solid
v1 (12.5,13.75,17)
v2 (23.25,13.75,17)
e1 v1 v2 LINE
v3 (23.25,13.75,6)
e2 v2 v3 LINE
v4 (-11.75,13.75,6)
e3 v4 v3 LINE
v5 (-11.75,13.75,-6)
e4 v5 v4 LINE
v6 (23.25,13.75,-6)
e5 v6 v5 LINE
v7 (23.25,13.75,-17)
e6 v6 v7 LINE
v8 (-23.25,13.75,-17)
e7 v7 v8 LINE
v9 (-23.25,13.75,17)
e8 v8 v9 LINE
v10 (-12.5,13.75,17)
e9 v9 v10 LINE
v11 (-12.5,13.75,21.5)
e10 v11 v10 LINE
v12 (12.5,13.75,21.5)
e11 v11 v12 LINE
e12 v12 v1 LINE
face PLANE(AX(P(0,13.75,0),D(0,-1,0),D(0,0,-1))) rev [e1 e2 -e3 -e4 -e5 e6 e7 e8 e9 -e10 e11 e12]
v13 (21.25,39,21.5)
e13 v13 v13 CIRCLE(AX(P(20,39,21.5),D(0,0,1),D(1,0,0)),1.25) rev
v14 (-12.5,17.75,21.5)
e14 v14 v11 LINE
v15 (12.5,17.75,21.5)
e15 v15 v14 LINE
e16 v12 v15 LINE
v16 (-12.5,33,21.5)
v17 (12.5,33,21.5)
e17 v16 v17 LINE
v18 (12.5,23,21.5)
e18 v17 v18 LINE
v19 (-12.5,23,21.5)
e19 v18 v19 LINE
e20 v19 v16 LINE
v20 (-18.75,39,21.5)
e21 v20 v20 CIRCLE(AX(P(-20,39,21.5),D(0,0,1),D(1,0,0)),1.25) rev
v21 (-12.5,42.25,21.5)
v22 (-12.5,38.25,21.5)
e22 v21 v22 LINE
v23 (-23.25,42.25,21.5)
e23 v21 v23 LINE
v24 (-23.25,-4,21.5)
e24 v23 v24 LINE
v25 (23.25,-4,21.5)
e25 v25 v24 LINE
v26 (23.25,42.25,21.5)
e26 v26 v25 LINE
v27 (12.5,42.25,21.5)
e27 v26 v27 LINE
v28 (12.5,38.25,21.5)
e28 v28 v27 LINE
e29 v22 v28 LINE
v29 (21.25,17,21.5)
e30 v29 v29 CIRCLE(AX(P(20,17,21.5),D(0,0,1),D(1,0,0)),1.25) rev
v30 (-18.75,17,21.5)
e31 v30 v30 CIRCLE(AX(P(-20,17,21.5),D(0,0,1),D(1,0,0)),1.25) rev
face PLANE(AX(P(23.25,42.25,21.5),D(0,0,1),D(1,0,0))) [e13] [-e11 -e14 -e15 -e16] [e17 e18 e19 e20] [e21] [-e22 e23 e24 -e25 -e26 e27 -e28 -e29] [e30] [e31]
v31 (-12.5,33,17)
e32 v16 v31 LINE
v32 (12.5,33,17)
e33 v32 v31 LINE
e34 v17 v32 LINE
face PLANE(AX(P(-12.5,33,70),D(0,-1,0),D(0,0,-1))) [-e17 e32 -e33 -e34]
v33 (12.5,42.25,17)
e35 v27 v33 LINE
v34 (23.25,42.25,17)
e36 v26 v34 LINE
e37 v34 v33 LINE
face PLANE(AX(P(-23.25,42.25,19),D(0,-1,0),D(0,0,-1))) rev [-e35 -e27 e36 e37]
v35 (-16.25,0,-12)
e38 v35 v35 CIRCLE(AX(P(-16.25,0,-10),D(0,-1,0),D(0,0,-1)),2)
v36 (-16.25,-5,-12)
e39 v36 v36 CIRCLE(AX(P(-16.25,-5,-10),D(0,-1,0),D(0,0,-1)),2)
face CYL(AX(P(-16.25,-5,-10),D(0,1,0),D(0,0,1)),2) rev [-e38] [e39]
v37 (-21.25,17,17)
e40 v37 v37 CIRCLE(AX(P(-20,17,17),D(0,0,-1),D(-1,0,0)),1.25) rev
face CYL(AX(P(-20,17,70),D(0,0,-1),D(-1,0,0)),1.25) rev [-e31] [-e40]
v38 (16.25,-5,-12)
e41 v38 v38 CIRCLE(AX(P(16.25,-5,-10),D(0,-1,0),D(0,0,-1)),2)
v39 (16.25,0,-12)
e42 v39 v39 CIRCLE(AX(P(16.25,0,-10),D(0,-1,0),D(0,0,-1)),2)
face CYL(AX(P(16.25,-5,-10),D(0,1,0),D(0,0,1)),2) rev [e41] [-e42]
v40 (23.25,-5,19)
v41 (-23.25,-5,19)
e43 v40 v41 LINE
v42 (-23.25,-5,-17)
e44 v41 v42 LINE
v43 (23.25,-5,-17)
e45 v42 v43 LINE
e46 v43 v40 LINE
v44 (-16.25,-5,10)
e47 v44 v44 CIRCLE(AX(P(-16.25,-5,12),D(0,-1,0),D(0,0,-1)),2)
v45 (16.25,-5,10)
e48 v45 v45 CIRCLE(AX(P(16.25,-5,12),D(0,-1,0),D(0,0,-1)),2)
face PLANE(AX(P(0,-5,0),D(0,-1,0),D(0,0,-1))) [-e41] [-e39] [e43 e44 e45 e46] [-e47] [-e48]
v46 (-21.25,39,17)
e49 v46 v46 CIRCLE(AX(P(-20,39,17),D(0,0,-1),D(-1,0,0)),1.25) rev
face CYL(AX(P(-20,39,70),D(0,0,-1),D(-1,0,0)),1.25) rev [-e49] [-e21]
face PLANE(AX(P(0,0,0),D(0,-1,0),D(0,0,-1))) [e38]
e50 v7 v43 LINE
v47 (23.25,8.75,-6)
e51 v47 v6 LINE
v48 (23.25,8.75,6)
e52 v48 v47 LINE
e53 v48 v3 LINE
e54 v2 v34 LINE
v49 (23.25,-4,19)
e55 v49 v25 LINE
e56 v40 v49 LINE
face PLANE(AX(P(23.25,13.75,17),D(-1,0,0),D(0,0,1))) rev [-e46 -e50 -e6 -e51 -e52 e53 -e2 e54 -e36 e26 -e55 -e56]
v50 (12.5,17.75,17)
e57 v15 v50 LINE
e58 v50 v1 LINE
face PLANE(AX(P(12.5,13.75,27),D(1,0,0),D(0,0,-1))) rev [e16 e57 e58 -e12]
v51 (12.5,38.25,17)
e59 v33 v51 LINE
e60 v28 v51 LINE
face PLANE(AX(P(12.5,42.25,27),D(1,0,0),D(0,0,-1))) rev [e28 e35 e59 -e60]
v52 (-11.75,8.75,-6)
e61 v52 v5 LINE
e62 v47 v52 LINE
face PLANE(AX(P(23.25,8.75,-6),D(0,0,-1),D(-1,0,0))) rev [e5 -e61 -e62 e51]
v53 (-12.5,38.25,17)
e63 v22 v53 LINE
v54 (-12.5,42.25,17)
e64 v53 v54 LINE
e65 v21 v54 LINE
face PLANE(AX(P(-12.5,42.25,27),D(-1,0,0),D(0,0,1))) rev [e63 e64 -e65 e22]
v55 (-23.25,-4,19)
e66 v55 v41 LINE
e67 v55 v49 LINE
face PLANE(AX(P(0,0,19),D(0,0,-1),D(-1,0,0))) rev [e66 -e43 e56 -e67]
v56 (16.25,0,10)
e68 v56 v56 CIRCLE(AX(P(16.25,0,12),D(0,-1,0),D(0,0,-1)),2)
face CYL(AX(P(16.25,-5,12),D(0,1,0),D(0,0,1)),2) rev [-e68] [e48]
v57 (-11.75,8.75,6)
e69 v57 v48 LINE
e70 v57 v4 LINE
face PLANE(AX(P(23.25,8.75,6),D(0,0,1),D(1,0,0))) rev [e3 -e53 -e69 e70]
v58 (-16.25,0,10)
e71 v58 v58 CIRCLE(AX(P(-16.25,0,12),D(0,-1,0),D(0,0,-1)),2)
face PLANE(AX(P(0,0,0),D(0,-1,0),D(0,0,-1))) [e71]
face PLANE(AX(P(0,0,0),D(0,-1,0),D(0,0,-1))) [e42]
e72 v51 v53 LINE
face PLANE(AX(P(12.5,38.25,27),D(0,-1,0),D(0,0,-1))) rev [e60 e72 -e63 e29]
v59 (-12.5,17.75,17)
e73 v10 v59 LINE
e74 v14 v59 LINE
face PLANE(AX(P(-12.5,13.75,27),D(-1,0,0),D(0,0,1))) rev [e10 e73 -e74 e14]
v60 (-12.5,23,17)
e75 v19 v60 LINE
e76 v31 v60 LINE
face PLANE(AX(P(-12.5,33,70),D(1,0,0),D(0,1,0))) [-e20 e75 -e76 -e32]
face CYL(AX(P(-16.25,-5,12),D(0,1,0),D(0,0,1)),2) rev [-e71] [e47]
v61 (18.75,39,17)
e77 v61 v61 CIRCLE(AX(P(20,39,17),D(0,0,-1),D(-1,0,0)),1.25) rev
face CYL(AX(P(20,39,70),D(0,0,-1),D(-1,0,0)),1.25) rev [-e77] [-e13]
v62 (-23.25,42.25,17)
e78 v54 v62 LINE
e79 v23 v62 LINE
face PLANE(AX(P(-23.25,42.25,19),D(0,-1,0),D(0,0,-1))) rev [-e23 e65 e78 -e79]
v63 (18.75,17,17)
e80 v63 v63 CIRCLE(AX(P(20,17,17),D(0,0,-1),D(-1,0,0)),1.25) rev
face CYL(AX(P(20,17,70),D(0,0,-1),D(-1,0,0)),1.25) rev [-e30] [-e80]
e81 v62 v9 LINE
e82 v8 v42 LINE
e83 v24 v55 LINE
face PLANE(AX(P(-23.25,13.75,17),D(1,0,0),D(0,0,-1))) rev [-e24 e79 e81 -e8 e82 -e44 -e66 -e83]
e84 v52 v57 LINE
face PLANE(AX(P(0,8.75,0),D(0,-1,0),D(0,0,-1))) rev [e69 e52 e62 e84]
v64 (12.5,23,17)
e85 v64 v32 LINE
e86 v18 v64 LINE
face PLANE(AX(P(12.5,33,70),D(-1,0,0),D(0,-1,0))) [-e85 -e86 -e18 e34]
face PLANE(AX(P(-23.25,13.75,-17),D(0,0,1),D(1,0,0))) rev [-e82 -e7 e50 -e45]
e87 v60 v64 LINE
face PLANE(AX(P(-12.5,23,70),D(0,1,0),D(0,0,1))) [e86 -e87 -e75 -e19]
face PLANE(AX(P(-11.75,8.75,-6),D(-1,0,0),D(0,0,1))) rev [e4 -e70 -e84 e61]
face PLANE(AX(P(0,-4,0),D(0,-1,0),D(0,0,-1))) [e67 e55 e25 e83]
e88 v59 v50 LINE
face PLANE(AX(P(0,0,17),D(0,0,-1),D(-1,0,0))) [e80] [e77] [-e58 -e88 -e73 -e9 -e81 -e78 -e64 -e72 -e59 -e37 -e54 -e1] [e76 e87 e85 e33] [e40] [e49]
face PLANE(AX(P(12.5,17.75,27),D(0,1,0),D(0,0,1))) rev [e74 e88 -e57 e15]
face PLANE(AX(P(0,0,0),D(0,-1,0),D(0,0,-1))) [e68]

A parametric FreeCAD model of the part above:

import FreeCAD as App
import Part
import Sketcher

V = App.Vector
Q = App.Units.Quantity

doc = App.newDocument("Part")
body = doc.addObject("PartDesign::Body", "Body")

sketch1 = body.newObject("Sketcher::SketchObject", "Sketch")
sketch1.AttachmentSupport = (doc.getObject("XZ_Plane"), [""])
sketch1.MapMode = "FlatFace"
sketch1.addGeometry([
    Part.LineSegment(V(-23, -17, 0), V(-23, 17, 0)),
    Part.LineSegment(V(-23, 17, 0), V(23, 17, 0)),
    Part.LineSegment(V(23, 17, 0), V(23, -17, 0)),
    Part.LineSegment(V(23, -17, 0), V(-23, -17, 0)),
], False)
sketch1.addConstraint([
    Sketcher.Constraint("Coincident", 0, 2, 1, 1),
    Sketcher.Constraint("Coincident", 1, 2, 2, 1),
    Sketcher.Constraint("Coincident", 2, 2, 3, 1),
    Sketcher.Constraint("Coincident", 3, 2, 0, 1),
    Sketcher.Constraint("Vertical", 0),
    Sketcher.Constraint("Horizontal", 1),
    Sketcher.Constraint("Vertical", 2),
    Sketcher.Constraint("Horizontal", 3),
    Sketcher.Constraint("Symmetric", 0, 2, 2, 2, -1, 1),
    Sketcher.Constraint("DistanceY", 0, 1, 0, 2, Q("34 mm")),
    Sketcher.Constraint("DistanceX", 1, 1, 1, 2, Q("46.5 mm")),
])
pad1 = body.newObject("PartDesign::Pad", "Pad")
pad1.Profile = sketch1
pad1.Length = 13.75
pad1.Reversed = True

sketch2 = body.newObject("Sketcher::SketchObject", "Sketch001")
sketch2.AttachmentSupport = (doc.getObject("XY_Plane"), [""])
sketch2.MapMode = "FlatFace"
sketch2.AttachmentOffset = App.Placement(V(0, 0, 17), App.Rotation())
sketch2.addGeometry([
    Part.LineSegment(V(-23, 42, 0), V(-23, 0, 0)),
    Part.LineSegment(V(-23, 0, 0), V(23, 0, 0)),
    Part.LineSegment(V(23, 0, 0), V(23, 42, 0)),
    Part.LineSegment(V(23, 42, 0), V(-23, 42, 0)),
], False)
sketch2.addConstraint([
    Sketcher.Constraint("Coincident", 0, 2, 1, 1),
    Sketcher.Constraint("Coincident", 1, 2, 2, 1),
    Sketcher.Constraint("Coincident", 2, 2, 3, 1),
    Sketcher.Constraint("Coincident", 3, 2, 0, 1),
    Sketcher.Constraint("Vertical", 0),
    Sketcher.Constraint("Horizontal", 1),
    Sketcher.Constraint("Vertical", 2),
    Sketcher.Constraint("Horizontal", 3),
    Sketcher.Constraint("Symmetric", 0, 2, 1, 2, -1, 1),
    Sketcher.Constraint("DistanceX", 1, 1, 1, 2, Q("46.5 mm")),
    Sketcher.Constraint("DistanceY", 0, 2, 0, 1, Q("42.25 mm")),
])
pad2 = body.newObject("PartDesign::Pad", "Pad001")
pad2.Profile = sketch2
pad2.Length = 2

sketch3 = body.newObject("Sketcher::SketchObject", "Sketch002")
sketch3.AttachmentSupport = (doc.getObject("XZ_Plane"), [""])
sketch3.MapMode = "FlatFace"
sketch3.AttachmentOffset = App.Placement(V(0, 0, -13.75), App.Rotation())
sketch3.addGeometry([
    Part.LineSegment(V(-12, -6, 0), V(-12, 6, 0)),
    Part.LineSegment(V(-12, 6, 0), V(23, 6, 0)),
    Part.LineSegment(V(23, 6, 0), V(23, -6, 0)),
    Part.LineSegment(V(23, -6, 0), V(-12, -6, 0)),
], False)
sketch3.addConstraint([
    Sketcher.Constraint("Coincident", 0, 2, 1, 1),
    Sketcher.Constraint("Coincident", 1, 2, 2, 1),
    Sketcher.Constraint("Coincident", 2, 2, 3, 1),
    Sketcher.Constraint("Coincident", 3, 2, 0, 1),
    Sketcher.Constraint("Vertical", 0),
    Sketcher.Constraint("Horizontal", 1),
    Sketcher.Constraint("Vertical", 2),
    Sketcher.Constraint("Horizontal", 3),
    Sketcher.Constraint("DistanceX", 1, 1, 1, 2, Q("35 mm")),
    Sketcher.Constraint("DistanceY", 0, 1, 0, 2, Q("12 mm")),
    Sketcher.Constraint("DistanceY", -1, 1, 0, 2, Q("6 mm")),
    Sketcher.Constraint("DistanceX", 0, 2, -1, 1, Q("11.75 mm")),
])
pocket1 = body.newObject("PartDesign::Pocket", "Pocket")
pocket1.Profile = sketch3
pocket1.Length = 5
pocket1.Reversed = True

sketch4 = body.newObject("Sketcher::SketchObject", "Sketch003")
sketch4.AttachmentSupport = (doc.getObject("XZ_Plane"), [""])
sketch4.MapMode = "FlatFace"
sketch4.addGeometry([
    Part.LineSegment(V(-23.2, 19, 0), V(-23.2, -17, 0)),
    Part.LineSegment(V(-23.2, -17, 0), V(23.2, -17, 0)),
    Part.LineSegment(V(23.2, -17, 0), V(23.2, 19, 0)),
    Part.LineSegment(V(23.2, 19, 0), V(-23.2, 19, 0)),
    Part.Circle(V(-16.2, -10, 0), V(0, 0, 1), 2),
    Part.Circle(V(16.2, -10, 0), V(0, 0, 1), 2),
    Part.Circle(V(-16.2, 12, 0), V(0, 0, 1), 2),
    Part.Circle(V(16.2, 12, 0), V(0, 0, 1), 2),
], False)
sketch4.addConstraint([
    Sketcher.Constraint("Coincident", 0, 2, 1, 1),
    Sketcher.Constraint("Coincident", 1, 2, 2, 1),
    Sketcher.Constraint("Coincident", 2, 2, 3, 1),
    Sketcher.Constraint("Coincident", 3, 2, 0, 1),
    Sketcher.Constraint("Vertical", 0),
    Sketcher.Constraint("Horizontal", 1),
    Sketcher.Constraint("Vertical", 2),
    Sketcher.Constraint("Horizontal", 3),
    Sketcher.Constraint("Equal", 4, 5),
    Sketcher.Constraint("Equal", 5, 6),
    Sketcher.Constraint("Equal", 6, 7),
    Sketcher.Constraint("Symmetric", 4, 3, 5, 3, -2),
    Sketcher.Constraint("Symmetric", 6, 3, 7, 3, -2),
    Sketcher.Constraint("Vertical", 4, 3, 6, 3),
    Sketcher.Constraint("Diameter", 4, Q("4 mm")),
    Sketcher.Constraint("DistanceY", 0, 2, 0, 1, Q("36 mm")),
    Sketcher.Constraint("DistanceX", 1, 1, 1, 2, Q("46.5 mm")),
    Sketcher.Constraint("DistanceY", 4, 3, -1, 1, Q("10 mm")),
    Sketcher.Constraint("DistanceY", -1, 1, 6, 3, Q("12 mm")),
    Sketcher.Constraint("DistanceY", 0, 2, -1, 1, Q("17 mm")),
    Sketcher.Constraint("DistanceX", 0, 2, 4, 3, Q("7 mm")),
    Sketcher.Constraint("DistanceX", 5, 3, 1, 2, Q("7 mm")),
])
pad3 = body.newObject("PartDesign::Pad", "Pad002")
pad3.Profile = sketch4
pad3.Length = 5

sketch5 = body.newObject("Sketcher::SketchObject", "Sketch004")
sketch5.AttachmentSupport = (doc.getObject("XZ_Plane"), [""])
sketch5.MapMode = "FlatFace"
sketch5.AttachmentOffset = App.Placement(V(0, 0, 4), App.Rotation())
sketch5.addGeometry([
    Part.LineSegment(V(23.2, 19, 0), V(23.2, 21.5, 0)),
    Part.LineSegment(V(23.2, 21.5, 0), V(-23.2, 21.5, 0)),
    Part.LineSegment(V(-23.2, 21.5, 0), V(-23.2, 19, 0)),
    Part.LineSegment(V(-23.2, 19, 0), V(23.2, 19, 0)),
], False)
sketch5.addConstraint([
    Sketcher.Constraint("Coincident", 0, 2, 1, 1),
    Sketcher.Constraint("Coincident", 1, 2, 2, 1),
    Sketcher.Constraint("Coincident", 2, 2, 3, 1),
    Sketcher.Constraint("Coincident", 3, 2, 0, 1),
    Sketcher.Constraint("Vertical", 0),
    Sketcher.Constraint("Horizontal", 1),
    Sketcher.Constraint("Vertical", 2),
    Sketcher.Constraint("Horizontal", 3),
    Sketcher.Constraint("DistanceX", 1, 2, 1, 1, Q("46.5 mm")),
    Sketcher.Constraint("DistanceY", 0, 1, 0, 2, Q("2.5 mm")),
    Sketcher.Constraint("DistanceY", -1, 1, 2, 2, Q("19 mm")),
    Sketcher.Constraint("DistanceX", -1, 1, 0, 2, Q("23.25 mm")),
])
pad4 = body.newObject("PartDesign::Pad", "Pad003")
pad4.Profile = sketch5
pad4.Length = 46.25
pad4.Reversed = True

sketch6 = body.newObject("Sketcher::SketchObject", "Sketch005")
sketch6.AttachmentSupport = (doc.getObject("XY_Plane"), [""])
sketch6.MapMode = "FlatFace"
sketch6.AttachmentOffset = App.Placement(V(0, 0, 19), App.Rotation())
sketch6.addGeometry(Part.Circle(V(-20, 39, 0), V(0, 0, 1), 1.2), False)
sketch6.addConstraint([
    Sketcher.Constraint("Diameter", 0, Q("2.5 mm")),
    Sketcher.Constraint("DistanceX", 0, 3, -1, 1, Q("20 mm")),
    Sketcher.Constraint("DistanceY", -1, 1, 0, 3, Q("39 mm")),
])
pocket2 = body.newObject("PartDesign::Pocket", "Pocket001")
pocket2.Profile = sketch6
pocket2.Type = "UpToFirst"

sketch7 = body.newObject("Sketcher::SketchObject", "Sketch006")
sketch7.AttachmentSupport = (doc.getObject("XY_Plane"), [""])
sketch7.MapMode = "FlatFace"
sketch7.AttachmentOffset = App.Placement(V(0, 0, 19), App.Rotation())
sketch7.addGeometry(Part.Circle(V(20, 39, 0), V(0, 0, 1), 1.2), False)
sketch7.addConstraint([
    Sketcher.Constraint("Diameter", 0, Q("2.5 mm")),
    Sketcher.Constraint("DistanceX", -1, 1, 0, 3, Q("20 mm")),
    Sketcher.Constraint("DistanceY", -1, 1, 0, 3, Q("39 mm")),
])
pocket3 = body.newObject("PartDesign::Pocket", "Pocket002")
pocket3.Profile = sketch7
pocket3.Type = "UpToFirst"

sketch8 = body.newObject("Sketcher::SketchObject", "Sketch007")
sketch8.AttachmentSupport = (doc.getObject("XY_Plane"), [""])
sketch8.MapMode = "FlatFace"
sketch8.AttachmentOffset = App.Placement(V(0, 0, 19), App.Rotation())
sketch8.addGeometry(Part.Circle(V(20, 17, 0), V(0, 0, 1), 1.2), False)
sketch8.addConstraint([
    Sketcher.Constraint("Diameter", 0, Q("2.5 mm")),
    Sketcher.Constraint("DistanceX", -1, 1, 0, 3, Q("20 mm")),
    Sketcher.Constraint("DistanceY", -1, 1, 0, 3, Q("17 mm")),
])
pocket4 = body.newObject("PartDesign::Pocket", "Pocket003")
pocket4.Profile = sketch8
pocket4.Type = "UpToFirst"

sketch9 = body.newObject("Sketcher::SketchObject", "Sketch008")
sketch9.AttachmentSupport = (doc.getObject("XY_Plane"), [""])
sketch9.MapMode = "FlatFace"
sketch9.AttachmentOffset = App.Placement(V(0, 0, 19), App.Rotation())
sketch9.addGeometry(Part.Circle(V(-20, 17, 0), V(0, 0, 1), 1.2), False)
sketch9.addConstraint([
    Sketcher.Constraint("Diameter", 0, Q("2.5 mm")),
    Sketcher.Constraint("DistanceX", 0, 3, -1, 1, Q("20 mm")),
    Sketcher.Constraint("DistanceY", -1, 1, 0, 3, Q("17 mm")),
])
pocket5 = body.newObject("PartDesign::Pocket", "Pocket004")
pocket5.Profile = sketch9
pocket5.Type = "UpToFirst"

sketch10 = body.newObject("Sketcher::SketchObject", "Sketch009")
sketch10.AttachmentSupport = (doc.getObject("XY_Plane"), [""])
sketch10.MapMode = "FlatFace"
sketch10.AttachmentOffset = App.Placement(V(0, 0, 19), App.Rotation())
sketch10.addGeometry([
    Part.LineSegment(V(-12, 33, 0), V(-12, 23, 0)),
    Part.LineSegment(V(-12, 23, 0), V(12, 23, 0)),
    Part.LineSegment(V(12, 23, 0), V(12, 33, 0)),
    Part.LineSegment(V(12, 33, 0), V(-12, 33, 0)),
], False)
sketch10.addConstraint([
    Sketcher.Constraint("Coincident", 0, 2, 1, 1),
    Sketcher.Constraint("Coincident", 1, 2, 2, 1),
    Sketcher.Constraint("Coincident", 2, 2, 3, 1),
    Sketcher.Constraint("Coincident", 3, 2, 0, 1),
    Sketcher.Constraint("Vertical", 0),
    Sketcher.Constraint("Horizontal", 1),
    Sketcher.Constraint("Vertical", 2),
    Sketcher.Constraint("Horizontal", 3),
    Sketcher.Constraint("DistanceX", 1, 1, 1, 2, Q("25 mm")),
    Sketcher.Constraint("DistanceY", 0, 2, 0, 1, Q("10 mm")),
    Sketcher.Constraint("DistanceY", -1, 1, 0, 2, Q("23 mm")),
    Sketcher.Constraint("DistanceX", 0, 2, -1, 1, Q("12.5 mm")),
])
pocket6 = body.newObject("PartDesign::Pocket", "Pocket005")
pocket6.Profile = sketch10
pocket6.Type = "UpToFirst"

sketch11 = body.newObject("Sketcher::SketchObject", "Sketch010")
sketch11.AttachmentSupport = (doc.getObject("XY_Plane"), [""])
sketch11.MapMode = "FlatFace"
sketch11.AttachmentOffset = App.Placement(V(0, 0, 19), App.Rotation())
sketch11.addGeometry([
    Part.Circle(V(-20, 39, 0), V(0, 0, 1), 1.2),
    Part.Circle(V(20, 39, 0), V(0, 0, 1), 1.2),
    Part.Circle(V(20, 17, 0), V(0, 0, 1), 1.2),
    Part.Circle(V(-20, 17, 0), V(0, 0, 1), 1.2),
    Part.LineSegment(V(-12.5, 33, 0), V(-12.5, 23, 0)),
    Part.LineSegment(V(-12.5, 23, 0), V(12.5, 23, 0)),
    Part.LineSegment(V(12.5, 23, 0), V(12.5, 33, 0)),
    Part.LineSegment(V(12.5, 33, 0), V(-12.5, 33, 0)),
], False)
sketch11.addConstraint([
    Sketcher.Constraint("Coincident", 4, 2, 5, 1),
    Sketcher.Constraint("Coincident", 5, 2, 6, 1),
    Sketcher.Constraint("Coincident", 6, 2, 7, 1),
    Sketcher.Constraint("Coincident", 7, 2, 4, 1),
    Sketcher.Constraint("Vertical", 4),
    Sketcher.Constraint("Horizontal", 5),
    Sketcher.Constraint("Vertical", 6),
    Sketcher.Constraint("Horizontal", 7),
    Sketcher.Constraint("Equal", 0, 1),
    Sketcher.Constraint("Equal", 1, 2),
    Sketcher.Constraint("Equal", 2, 3),
    Sketcher.Constraint("Symmetric", 0, 3, 1, 3, -2),
    Sketcher.Constraint("Symmetric", 2, 3, 3, 3, -2),
    Sketcher.Constraint("Vertical", 1, 3, 2, 3),
    Sketcher.Constraint("Diameter", 0, Q("2.5 mm")),
    Sketcher.Constraint("DistanceX", 5, 1, 5, 2, Q("25 mm")),
    Sketcher.Constraint("DistanceY", 4, 2, 4, 1, Q("10 mm")),
    Sketcher.Constraint("DistanceX", 0, 3, -1, 1, Q("20 mm")),
    Sketcher.Constraint("DistanceY", -1, 1, 0, 3, Q("39 mm")),
    Sketcher.Constraint("DistanceY", -1, 1, 2, 3, Q("17 mm")),
    Sketcher.Constraint("DistanceY", -1, 1, 4, 2, Q("23 mm")),
    Sketcher.Constraint("DistanceX", 4, 2, -1, 1, Q("12.5 mm")),
])
pocket7 = body.newObject("PartDesign::Pocket", "Pocket006")
pocket7.Profile = sketch11
pocket7.Length = 51
pocket7.Reversed = True

sketch12 = body.newObject("Sketcher::SketchObject", "Sketch011")
sketch12.AttachmentSupport = (doc.getObject("XY_Plane"), [""])
sketch12.MapMode = "FlatFace"
sketch12.AttachmentOffset = App.Placement(V(0, 0, 17), App.Rotation())
sketch12.addGeometry([
    Part.LineSegment(V(12.5, 17.8, 0), V(12.5, 13.8, 0)),
    Part.LineSegment(V(12.5, 13.8, 0), V(-12.5, 13.8, 0)),
    Part.LineSegment(V(-12.5, 13.8, 0), V(-12.5, 17.8, 0)),
    Part.LineSegment(V(-12.5, 17.8, 0), V(12.5, 17.8, 0)),
    Part.LineSegment(V(12.5, 42.2, 0), V(12.5, 38.2, 0)),
    Part.LineSegment(V(12.5, 38.2, 0), V(-12.5, 38.2, 0)),
    Part.LineSegment(V(-12.5, 38.2, 0), V(-12.5, 42.2, 0)),
    Part.LineSegment(V(-12.5, 42.2, 0), V(12.5, 42.2, 0)),
], False)
sketch12.addConstraint([
    Sketcher.Constraint("Coincident", 0, 2, 1, 1),
    Sketcher.Constraint("Coincident", 1, 2, 2, 1),
    Sketcher.Constraint("Coincident", 2, 2, 3, 1),
    Sketcher.Constraint("Coincident", 3, 2, 0, 1),
    Sketcher.Constraint("Coincident", 4, 2, 5, 1),
    Sketcher.Constraint("Coincident", 5, 2, 6, 1),
    Sketcher.Constraint("Coincident", 6, 2, 7, 1),
    Sketcher.Constraint("Coincident", 7, 2, 4, 1),
    Sketcher.Constraint("Vertical", 0),
    Sketcher.Constraint("Horizontal", 1),
    Sketcher.Constraint("Vertical", 2),
    Sketcher.Constraint("Horizontal", 3),
    Sketcher.Constraint("Vertical", 4),
    Sketcher.Constraint("Horizontal", 5),
    Sketcher.Constraint("Vertical", 6),
    Sketcher.Constraint("Horizontal", 7),
    Sketcher.Constraint("Vertical", 3, 2, 4, 2),
    Sketcher.Constraint("Vertical", 2, 2, 5, 2),
    Sketcher.Constraint("Equal", 2, 4),
    Sketcher.Constraint("DistanceX", 1, 2, 1, 1, Q("25 mm")),
    Sketcher.Constraint("DistanceY", 0, 2, 0, 1, Q("4 mm")),
    Sketcher.Constraint("DistanceX", -1, 1, 0, 2, Q("12.5 mm")),
    Sketcher.Constraint("DistanceY", 3, 2, 4, 2, Q("20.5 mm")),
    Sketcher.Constraint("DistanceY", -1, 1, 0, 2, Q("13.75 mm")),
])
pocket8 = body.newObject("PartDesign::Pocket", "Pocket007")
pocket8.Profile = sketch12
pocket8.Length = 10
pocket8.Reversed = True

doc.recompute()
